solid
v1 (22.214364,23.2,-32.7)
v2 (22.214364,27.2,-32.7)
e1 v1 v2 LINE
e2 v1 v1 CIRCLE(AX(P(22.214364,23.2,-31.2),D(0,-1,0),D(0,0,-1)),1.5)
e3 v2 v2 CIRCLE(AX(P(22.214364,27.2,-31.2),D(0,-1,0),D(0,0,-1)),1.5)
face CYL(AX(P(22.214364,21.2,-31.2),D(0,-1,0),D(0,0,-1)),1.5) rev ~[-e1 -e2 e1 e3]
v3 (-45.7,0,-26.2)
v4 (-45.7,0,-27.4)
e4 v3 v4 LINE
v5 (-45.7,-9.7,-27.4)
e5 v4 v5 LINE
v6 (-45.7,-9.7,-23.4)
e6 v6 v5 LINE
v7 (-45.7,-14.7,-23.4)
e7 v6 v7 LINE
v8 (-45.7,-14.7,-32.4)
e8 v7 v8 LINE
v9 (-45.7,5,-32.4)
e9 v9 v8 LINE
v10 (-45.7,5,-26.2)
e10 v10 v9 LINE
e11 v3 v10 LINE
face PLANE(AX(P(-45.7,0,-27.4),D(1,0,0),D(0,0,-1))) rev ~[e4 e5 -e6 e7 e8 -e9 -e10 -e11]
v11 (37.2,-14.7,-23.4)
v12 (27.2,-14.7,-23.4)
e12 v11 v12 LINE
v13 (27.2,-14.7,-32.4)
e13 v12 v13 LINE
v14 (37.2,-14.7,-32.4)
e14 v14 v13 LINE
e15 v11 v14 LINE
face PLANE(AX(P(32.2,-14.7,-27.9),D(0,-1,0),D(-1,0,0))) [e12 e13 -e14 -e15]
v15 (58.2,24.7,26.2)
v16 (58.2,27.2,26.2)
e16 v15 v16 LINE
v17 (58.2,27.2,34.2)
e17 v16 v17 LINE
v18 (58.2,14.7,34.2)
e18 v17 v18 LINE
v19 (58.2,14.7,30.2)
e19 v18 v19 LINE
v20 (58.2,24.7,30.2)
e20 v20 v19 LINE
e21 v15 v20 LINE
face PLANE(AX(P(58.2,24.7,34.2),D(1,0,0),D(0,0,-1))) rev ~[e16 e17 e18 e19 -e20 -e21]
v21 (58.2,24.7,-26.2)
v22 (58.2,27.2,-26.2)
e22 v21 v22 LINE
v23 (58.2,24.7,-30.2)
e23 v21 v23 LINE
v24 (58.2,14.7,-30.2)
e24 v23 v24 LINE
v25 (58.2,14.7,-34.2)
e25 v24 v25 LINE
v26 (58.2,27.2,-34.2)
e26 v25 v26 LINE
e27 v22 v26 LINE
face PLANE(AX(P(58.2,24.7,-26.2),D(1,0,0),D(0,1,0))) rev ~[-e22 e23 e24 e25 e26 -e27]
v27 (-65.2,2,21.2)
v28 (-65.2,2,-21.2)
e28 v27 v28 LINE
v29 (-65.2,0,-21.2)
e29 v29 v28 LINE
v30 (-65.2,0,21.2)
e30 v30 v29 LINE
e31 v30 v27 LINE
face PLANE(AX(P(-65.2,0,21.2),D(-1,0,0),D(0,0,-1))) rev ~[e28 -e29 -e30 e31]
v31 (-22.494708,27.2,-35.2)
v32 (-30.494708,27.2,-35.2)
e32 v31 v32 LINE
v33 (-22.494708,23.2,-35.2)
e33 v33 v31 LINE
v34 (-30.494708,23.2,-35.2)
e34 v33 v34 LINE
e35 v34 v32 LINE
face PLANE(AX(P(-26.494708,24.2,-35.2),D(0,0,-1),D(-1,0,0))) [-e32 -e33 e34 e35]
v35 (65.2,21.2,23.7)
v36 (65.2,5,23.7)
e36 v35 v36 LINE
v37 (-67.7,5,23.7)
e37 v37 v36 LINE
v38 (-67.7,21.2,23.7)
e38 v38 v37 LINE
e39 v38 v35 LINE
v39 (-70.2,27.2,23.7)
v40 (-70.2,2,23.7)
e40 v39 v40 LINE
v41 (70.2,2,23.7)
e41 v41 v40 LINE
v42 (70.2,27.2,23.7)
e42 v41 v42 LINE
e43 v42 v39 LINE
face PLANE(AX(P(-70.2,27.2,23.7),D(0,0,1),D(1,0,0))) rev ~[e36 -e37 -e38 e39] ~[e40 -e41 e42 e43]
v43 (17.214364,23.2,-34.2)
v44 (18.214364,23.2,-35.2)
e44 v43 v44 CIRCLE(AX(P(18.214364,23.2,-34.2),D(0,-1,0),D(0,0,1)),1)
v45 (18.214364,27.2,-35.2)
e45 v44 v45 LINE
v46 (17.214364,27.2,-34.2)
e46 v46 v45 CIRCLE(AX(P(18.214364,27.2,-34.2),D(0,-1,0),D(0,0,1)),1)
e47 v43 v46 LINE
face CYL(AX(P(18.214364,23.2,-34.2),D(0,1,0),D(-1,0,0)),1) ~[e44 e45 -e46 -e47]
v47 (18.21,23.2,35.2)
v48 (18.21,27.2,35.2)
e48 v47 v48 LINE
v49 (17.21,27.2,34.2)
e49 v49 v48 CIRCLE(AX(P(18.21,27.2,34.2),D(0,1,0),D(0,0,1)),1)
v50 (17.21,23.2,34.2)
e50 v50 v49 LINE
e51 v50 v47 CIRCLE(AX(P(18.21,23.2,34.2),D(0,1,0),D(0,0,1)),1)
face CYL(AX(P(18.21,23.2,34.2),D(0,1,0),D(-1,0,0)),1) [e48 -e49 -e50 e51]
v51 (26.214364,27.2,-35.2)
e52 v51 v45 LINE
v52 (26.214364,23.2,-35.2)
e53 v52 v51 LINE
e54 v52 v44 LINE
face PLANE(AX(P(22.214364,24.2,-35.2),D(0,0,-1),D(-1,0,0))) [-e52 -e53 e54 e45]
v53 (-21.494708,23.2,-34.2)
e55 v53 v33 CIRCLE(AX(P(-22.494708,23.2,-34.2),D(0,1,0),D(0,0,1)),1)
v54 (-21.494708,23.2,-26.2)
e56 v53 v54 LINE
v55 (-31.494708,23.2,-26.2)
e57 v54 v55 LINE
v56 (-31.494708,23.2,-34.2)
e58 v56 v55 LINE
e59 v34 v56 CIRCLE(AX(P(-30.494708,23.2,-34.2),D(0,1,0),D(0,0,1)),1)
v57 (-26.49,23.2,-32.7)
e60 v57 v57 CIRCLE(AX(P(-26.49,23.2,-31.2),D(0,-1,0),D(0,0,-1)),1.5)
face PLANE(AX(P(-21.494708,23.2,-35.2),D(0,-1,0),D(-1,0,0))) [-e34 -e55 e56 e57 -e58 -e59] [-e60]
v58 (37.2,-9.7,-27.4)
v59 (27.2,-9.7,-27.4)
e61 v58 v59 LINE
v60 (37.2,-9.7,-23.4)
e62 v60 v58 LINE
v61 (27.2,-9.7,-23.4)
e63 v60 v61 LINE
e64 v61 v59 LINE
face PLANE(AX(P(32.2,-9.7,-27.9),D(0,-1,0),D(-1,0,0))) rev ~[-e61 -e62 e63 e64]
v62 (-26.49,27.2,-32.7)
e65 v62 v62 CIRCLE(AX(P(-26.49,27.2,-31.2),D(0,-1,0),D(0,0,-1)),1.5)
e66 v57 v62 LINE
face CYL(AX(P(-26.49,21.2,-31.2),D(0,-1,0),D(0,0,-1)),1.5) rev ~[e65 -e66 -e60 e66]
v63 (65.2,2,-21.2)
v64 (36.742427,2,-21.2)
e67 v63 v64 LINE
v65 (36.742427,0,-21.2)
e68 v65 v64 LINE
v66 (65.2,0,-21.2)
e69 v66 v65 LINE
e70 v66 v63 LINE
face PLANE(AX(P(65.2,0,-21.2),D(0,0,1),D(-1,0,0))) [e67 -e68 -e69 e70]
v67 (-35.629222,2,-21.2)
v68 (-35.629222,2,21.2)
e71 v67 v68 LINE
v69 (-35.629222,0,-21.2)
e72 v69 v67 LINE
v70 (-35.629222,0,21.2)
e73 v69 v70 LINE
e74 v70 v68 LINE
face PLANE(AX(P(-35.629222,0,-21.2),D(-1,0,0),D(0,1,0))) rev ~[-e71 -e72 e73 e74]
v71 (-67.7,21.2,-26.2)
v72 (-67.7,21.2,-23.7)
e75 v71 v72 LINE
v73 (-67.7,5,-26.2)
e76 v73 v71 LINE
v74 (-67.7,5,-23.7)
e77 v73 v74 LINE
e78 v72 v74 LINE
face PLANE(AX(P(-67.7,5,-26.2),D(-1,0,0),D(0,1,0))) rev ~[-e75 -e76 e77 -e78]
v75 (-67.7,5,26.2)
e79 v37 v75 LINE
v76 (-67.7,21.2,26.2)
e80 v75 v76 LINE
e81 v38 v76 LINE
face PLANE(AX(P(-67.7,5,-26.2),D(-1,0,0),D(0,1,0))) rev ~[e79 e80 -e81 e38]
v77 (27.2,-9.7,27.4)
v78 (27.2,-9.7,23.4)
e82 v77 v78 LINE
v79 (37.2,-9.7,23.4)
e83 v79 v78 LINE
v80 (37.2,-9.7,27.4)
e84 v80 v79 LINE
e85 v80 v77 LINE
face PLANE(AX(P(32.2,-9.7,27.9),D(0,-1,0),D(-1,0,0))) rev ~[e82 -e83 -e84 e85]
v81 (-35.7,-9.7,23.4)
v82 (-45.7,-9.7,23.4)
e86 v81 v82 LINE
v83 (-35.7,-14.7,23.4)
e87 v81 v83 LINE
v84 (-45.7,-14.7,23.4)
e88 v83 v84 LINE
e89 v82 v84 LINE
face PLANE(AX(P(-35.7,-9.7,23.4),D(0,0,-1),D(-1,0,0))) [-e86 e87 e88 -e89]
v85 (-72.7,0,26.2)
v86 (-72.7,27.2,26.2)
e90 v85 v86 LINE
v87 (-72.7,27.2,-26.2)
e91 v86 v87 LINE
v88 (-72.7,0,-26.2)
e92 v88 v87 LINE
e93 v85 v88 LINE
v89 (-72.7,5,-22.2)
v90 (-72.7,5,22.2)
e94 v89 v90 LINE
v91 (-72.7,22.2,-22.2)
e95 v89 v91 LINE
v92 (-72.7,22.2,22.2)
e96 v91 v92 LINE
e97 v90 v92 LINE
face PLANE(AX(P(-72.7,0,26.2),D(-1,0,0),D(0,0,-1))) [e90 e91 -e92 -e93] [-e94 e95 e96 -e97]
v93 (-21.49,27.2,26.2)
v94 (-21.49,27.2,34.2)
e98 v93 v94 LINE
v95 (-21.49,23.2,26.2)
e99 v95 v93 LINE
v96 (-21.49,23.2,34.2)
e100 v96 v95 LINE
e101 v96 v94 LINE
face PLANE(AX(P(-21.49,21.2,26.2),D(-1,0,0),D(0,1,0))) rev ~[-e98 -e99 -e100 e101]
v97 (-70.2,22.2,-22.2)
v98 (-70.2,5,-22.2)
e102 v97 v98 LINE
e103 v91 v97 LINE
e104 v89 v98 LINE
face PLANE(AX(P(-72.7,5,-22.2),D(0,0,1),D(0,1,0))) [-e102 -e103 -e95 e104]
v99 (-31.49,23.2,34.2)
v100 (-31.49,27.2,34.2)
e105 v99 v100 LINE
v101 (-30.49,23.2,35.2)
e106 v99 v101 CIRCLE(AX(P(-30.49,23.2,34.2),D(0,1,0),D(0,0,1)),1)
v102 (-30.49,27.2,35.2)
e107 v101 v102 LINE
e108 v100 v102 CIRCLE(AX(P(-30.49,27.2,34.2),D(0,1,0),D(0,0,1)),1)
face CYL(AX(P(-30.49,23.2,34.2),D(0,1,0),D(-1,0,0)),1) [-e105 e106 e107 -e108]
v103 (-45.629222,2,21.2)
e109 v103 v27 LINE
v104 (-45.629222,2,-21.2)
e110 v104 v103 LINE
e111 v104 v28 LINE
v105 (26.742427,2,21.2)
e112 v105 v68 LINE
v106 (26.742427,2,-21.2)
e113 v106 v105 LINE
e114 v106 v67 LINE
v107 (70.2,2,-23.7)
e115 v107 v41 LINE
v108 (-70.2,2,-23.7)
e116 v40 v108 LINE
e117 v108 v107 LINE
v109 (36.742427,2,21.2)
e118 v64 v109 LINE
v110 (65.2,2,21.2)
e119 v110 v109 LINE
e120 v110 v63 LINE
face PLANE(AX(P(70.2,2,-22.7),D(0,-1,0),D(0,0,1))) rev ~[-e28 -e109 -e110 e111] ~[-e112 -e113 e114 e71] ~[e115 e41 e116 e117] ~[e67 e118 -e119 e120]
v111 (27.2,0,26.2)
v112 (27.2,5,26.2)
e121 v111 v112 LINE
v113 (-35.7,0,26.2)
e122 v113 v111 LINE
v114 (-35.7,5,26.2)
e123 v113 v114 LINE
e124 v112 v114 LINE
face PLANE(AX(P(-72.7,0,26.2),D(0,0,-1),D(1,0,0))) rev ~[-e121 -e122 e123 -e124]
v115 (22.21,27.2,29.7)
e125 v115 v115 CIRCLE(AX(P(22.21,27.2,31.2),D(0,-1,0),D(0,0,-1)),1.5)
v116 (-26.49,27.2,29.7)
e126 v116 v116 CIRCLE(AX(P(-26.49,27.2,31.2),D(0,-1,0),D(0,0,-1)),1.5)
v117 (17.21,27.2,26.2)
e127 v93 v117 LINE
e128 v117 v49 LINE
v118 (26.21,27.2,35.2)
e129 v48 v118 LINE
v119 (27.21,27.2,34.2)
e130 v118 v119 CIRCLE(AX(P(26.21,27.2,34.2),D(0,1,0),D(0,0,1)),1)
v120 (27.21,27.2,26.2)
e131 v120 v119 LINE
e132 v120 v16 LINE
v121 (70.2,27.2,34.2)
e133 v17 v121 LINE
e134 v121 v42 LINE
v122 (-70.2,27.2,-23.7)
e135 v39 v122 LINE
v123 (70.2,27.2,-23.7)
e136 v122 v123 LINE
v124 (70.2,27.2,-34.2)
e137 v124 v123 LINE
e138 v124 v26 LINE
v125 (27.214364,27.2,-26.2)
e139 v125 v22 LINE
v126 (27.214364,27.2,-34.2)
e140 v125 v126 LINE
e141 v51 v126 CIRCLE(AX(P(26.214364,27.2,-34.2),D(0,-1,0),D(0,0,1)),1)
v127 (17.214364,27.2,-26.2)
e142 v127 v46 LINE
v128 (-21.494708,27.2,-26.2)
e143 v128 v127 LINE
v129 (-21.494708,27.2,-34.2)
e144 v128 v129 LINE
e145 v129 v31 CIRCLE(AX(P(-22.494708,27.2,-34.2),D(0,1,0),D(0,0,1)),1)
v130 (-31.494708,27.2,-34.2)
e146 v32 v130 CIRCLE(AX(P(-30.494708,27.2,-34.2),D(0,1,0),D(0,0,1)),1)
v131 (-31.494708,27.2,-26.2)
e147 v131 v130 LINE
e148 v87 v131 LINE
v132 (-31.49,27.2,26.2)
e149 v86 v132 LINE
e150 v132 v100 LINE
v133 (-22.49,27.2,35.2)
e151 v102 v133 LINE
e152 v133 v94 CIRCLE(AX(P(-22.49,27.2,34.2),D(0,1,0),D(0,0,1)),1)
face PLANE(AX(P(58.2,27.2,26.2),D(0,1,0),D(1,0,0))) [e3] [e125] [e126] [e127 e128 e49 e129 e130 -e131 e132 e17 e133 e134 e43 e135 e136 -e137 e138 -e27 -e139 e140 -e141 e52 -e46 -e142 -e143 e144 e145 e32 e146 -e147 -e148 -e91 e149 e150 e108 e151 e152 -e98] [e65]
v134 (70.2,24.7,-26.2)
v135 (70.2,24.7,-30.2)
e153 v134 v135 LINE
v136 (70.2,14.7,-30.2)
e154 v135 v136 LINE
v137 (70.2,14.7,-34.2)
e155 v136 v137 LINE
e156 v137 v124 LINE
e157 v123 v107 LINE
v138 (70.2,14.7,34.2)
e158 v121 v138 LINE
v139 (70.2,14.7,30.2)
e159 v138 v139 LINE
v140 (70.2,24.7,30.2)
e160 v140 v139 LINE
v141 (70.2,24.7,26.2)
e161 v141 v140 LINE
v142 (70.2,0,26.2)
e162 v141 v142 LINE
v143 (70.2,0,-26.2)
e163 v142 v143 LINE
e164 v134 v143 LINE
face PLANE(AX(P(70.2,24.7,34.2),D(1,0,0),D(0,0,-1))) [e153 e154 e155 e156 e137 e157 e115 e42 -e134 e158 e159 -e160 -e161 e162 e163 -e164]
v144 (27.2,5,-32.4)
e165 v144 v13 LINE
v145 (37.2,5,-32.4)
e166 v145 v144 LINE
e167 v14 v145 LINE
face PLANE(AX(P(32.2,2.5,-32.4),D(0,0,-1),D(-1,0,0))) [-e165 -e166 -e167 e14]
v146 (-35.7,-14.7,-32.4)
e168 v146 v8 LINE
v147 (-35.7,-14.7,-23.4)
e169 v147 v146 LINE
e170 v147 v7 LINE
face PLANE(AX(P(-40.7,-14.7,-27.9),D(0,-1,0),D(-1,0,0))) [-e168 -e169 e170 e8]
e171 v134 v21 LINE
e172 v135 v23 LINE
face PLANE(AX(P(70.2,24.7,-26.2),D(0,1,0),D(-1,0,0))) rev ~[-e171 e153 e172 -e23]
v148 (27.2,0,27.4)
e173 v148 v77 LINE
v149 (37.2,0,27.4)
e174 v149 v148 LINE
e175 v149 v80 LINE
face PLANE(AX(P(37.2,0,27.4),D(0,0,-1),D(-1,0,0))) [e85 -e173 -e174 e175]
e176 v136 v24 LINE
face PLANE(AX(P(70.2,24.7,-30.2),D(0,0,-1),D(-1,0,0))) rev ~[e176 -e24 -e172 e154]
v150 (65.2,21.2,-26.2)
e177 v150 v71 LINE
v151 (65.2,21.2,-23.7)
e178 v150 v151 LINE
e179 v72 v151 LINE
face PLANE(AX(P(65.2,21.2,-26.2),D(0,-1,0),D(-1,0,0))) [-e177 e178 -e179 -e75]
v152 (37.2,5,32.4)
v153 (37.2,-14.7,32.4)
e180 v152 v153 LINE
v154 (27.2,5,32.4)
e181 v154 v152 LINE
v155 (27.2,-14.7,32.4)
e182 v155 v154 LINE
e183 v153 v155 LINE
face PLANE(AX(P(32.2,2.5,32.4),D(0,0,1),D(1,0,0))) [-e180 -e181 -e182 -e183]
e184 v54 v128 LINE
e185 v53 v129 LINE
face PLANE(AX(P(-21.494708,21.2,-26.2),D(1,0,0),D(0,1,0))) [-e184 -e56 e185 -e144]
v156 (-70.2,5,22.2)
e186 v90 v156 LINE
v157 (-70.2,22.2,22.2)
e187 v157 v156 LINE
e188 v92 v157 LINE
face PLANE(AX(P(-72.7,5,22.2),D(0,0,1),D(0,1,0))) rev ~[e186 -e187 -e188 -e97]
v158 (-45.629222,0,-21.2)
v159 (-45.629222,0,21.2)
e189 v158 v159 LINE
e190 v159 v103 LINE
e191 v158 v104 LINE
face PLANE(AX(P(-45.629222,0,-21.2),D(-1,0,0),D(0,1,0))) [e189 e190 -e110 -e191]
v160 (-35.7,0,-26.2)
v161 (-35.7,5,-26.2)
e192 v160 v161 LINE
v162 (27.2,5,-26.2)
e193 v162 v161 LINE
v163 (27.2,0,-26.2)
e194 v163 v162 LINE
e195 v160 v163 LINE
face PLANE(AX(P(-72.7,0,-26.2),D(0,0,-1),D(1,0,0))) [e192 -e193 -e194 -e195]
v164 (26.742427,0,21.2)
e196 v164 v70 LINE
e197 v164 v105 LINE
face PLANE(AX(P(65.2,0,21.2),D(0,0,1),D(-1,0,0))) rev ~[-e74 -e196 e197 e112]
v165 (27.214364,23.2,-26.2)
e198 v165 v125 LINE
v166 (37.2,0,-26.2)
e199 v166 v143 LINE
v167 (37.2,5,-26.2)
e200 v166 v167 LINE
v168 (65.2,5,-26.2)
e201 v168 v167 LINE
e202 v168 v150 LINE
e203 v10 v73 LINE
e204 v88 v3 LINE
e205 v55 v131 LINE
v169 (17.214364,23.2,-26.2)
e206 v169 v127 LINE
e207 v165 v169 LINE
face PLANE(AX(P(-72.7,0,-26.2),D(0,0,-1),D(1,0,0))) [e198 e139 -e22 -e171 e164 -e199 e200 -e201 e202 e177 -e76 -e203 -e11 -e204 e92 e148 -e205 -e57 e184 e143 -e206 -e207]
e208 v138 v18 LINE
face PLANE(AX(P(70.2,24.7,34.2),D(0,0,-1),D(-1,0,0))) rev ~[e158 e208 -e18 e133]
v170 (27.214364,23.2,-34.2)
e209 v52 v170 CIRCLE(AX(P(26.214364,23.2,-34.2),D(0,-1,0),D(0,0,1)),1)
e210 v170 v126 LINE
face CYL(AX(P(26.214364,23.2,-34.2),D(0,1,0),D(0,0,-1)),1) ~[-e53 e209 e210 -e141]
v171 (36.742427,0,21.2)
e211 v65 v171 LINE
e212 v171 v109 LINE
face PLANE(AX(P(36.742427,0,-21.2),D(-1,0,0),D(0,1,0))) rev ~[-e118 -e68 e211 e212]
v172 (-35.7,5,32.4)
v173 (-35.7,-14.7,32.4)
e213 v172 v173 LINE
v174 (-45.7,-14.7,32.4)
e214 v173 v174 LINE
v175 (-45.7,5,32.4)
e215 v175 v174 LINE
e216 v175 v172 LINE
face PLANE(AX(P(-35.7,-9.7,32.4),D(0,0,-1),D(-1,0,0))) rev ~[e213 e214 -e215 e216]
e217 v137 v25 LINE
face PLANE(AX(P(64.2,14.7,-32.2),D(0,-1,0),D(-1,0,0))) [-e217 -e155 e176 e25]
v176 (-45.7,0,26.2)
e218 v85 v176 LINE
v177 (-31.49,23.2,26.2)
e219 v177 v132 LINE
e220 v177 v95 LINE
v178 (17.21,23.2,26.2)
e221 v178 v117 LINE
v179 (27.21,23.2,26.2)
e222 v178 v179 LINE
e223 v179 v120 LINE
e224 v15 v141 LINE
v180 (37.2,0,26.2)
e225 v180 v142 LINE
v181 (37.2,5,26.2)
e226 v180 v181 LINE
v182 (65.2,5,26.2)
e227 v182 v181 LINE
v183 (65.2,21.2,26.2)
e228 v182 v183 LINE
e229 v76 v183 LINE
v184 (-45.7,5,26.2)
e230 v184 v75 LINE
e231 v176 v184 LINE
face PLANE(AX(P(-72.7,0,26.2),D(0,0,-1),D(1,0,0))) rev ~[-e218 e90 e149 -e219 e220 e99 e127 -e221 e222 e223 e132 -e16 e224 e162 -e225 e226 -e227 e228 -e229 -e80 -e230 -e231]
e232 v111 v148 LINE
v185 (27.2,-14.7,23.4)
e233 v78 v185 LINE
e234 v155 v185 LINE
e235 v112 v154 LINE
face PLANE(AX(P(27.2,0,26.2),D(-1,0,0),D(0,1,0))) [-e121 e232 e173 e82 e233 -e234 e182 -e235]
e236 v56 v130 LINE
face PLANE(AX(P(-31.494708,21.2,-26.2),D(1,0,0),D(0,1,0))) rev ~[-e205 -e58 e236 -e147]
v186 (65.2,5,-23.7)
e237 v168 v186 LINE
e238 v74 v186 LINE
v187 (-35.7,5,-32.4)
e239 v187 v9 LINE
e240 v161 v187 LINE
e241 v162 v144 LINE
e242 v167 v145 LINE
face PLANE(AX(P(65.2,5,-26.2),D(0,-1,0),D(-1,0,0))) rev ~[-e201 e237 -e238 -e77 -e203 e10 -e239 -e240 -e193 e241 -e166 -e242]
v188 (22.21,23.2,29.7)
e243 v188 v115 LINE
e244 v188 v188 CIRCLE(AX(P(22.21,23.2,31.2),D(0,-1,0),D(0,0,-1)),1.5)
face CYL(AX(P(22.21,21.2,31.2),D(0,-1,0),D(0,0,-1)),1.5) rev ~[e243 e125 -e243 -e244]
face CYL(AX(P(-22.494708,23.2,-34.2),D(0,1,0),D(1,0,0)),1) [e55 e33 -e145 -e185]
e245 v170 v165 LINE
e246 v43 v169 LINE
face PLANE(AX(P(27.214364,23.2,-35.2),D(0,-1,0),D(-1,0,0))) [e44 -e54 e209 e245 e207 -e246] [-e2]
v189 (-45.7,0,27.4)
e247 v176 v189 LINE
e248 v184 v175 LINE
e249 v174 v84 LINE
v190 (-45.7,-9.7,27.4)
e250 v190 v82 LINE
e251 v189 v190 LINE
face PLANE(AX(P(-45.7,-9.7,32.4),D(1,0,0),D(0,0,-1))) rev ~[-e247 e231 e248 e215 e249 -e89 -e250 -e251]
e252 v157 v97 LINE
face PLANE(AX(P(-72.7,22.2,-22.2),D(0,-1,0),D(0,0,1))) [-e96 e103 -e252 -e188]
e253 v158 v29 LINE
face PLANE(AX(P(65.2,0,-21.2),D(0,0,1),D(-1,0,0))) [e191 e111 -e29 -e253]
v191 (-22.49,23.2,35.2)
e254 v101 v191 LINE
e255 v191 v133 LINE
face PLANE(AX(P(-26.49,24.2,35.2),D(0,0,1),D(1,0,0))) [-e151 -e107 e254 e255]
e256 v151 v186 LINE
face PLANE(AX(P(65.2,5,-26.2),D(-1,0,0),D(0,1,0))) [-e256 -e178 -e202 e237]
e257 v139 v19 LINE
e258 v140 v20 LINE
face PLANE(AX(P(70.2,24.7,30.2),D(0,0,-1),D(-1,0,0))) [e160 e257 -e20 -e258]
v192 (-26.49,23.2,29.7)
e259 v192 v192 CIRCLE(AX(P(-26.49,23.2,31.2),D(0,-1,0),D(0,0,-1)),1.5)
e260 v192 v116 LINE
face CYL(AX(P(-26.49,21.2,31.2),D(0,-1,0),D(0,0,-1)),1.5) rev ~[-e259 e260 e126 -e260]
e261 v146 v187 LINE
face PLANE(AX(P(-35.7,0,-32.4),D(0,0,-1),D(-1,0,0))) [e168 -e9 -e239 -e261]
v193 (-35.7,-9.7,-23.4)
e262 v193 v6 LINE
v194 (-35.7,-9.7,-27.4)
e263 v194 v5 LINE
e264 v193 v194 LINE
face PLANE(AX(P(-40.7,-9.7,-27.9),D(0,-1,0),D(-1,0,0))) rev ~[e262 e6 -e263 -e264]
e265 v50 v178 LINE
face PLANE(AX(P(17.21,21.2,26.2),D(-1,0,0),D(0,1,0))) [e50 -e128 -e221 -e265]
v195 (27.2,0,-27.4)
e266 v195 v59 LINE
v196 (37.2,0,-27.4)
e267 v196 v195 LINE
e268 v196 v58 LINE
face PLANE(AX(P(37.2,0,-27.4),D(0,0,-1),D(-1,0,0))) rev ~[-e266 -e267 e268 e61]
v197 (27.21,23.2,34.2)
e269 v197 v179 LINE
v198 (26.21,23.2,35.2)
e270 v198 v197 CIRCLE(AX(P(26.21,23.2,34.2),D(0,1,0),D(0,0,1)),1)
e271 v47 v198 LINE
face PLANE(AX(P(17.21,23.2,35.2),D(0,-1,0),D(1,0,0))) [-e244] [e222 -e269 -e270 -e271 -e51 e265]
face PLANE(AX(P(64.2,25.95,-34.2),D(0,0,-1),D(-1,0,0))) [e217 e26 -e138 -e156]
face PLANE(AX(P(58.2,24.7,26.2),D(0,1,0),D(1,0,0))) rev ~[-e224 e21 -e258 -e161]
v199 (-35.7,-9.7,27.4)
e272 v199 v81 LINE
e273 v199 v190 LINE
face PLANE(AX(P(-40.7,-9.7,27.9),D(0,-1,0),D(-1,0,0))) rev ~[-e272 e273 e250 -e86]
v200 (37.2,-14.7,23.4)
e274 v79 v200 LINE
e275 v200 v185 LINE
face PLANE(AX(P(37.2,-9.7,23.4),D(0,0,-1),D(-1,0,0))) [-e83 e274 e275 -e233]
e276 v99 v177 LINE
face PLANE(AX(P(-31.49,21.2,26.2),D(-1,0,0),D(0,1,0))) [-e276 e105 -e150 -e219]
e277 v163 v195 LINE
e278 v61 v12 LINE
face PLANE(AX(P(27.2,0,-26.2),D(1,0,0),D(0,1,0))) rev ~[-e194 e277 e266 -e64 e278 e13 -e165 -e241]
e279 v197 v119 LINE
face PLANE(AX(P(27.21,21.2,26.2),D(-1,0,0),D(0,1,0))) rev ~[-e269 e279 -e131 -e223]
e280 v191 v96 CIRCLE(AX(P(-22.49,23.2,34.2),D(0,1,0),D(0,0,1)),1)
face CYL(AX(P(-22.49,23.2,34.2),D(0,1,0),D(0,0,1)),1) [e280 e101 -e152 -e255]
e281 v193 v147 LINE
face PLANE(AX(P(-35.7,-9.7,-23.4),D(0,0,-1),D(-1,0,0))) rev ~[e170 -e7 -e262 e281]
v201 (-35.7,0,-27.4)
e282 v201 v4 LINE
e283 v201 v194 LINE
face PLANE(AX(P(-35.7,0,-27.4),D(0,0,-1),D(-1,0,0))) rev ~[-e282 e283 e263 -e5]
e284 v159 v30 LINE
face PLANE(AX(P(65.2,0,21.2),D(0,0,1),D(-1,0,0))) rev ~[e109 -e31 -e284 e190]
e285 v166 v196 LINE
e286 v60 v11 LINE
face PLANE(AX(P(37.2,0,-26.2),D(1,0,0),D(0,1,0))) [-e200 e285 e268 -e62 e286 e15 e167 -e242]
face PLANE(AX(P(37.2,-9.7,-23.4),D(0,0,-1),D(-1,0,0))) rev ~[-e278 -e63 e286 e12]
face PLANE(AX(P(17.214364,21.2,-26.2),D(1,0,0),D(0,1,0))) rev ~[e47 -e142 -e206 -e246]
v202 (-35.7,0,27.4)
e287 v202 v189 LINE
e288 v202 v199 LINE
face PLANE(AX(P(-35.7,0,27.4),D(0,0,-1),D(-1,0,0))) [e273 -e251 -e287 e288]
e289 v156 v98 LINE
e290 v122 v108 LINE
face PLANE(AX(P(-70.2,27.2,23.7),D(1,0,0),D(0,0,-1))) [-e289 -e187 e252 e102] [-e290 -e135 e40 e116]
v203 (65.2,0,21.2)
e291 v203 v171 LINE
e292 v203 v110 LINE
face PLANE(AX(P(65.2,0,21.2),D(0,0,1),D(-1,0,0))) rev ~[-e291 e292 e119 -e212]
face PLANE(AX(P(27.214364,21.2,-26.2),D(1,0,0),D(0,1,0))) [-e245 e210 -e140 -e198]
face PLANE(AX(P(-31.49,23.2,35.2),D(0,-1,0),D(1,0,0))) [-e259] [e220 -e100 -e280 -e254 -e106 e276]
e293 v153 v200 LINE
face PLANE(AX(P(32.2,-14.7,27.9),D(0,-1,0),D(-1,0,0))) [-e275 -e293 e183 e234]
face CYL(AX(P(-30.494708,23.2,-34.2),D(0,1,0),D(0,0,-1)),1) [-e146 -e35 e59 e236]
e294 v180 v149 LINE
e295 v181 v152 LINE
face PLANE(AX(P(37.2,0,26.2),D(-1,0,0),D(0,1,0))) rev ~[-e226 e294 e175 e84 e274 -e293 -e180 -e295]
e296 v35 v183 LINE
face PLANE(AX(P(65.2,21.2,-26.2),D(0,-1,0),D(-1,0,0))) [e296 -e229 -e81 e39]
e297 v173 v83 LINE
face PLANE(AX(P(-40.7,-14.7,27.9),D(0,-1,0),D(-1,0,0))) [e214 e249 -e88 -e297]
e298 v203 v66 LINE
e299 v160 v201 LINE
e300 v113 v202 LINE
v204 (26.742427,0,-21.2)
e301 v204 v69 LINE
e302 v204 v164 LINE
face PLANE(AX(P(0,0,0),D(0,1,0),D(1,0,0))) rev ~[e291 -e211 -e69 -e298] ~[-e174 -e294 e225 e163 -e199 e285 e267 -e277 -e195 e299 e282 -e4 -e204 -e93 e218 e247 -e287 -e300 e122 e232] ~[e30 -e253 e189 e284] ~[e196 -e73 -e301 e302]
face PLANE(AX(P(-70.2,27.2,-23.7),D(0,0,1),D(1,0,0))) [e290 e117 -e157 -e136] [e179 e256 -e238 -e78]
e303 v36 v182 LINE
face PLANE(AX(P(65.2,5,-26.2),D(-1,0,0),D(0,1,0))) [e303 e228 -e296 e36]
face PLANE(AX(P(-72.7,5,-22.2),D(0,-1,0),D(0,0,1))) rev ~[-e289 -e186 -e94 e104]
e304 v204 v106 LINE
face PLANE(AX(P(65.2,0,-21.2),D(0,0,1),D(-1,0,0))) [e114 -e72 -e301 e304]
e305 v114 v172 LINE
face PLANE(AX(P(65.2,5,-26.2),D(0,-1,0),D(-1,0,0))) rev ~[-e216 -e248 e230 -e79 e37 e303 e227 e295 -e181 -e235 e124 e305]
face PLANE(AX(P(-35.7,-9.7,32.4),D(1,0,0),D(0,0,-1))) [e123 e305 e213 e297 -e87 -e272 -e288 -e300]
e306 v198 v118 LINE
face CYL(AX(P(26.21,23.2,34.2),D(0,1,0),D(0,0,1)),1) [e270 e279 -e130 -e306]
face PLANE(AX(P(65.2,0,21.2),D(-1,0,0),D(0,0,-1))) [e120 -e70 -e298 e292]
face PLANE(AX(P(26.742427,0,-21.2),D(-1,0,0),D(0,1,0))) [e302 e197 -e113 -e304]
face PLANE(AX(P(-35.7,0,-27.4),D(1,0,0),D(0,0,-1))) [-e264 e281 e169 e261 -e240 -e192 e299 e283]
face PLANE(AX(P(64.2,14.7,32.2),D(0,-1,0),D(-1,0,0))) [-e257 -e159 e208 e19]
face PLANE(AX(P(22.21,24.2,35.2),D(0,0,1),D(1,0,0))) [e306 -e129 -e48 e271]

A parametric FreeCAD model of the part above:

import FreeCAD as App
import Part
import Sketcher

V = App.Vector
Q = App.Units.Quantity


def edges_at(feature, points):
    """Names of the edges that pass closest to the given points."""
    edges = feature.Shape.Edges
    near = lambda p: min(range(len(edges)), key=lambda i: edges[i].distToShape(Part.Vertex(*p))[0])
    return sorted({f"Edge{near(p) + 1}" for p in points})


def add_polygon(sketch, points):
    """Adds a closed chain of lines whose ends are joined by coincident constraints."""
    first, n = sketch.GeometryCount, len(points)
    for a, b in zip(points, points[1:] + points[:1]):
        sketch.addGeometry(Part.LineSegment(App.Vector(*a, 0), App.Vector(*b, 0)), False)
    for i in range(n):
        sketch.addConstraint(Sketcher.Constraint("Coincident", first + i, 2, first + (i + 1) % n, 1))

doc = App.newDocument("Part")
body = doc.addObject("PartDesign::Body", "Body")

# Sketch on XZ plane
sketch1 = body.newObject("Sketcher::SketchObject", "Sketch")
sketch1.AttachmentSupport = (doc.getObject("XZ_Plane"), [""])
sketch1.MapMode = "FlatFace"
add_polygon(sketch1, [(-73, -26), (-73, 26), (73, 26), (73, -26)])  # lines 0-3
sketch1.addConstraint([
    Sketcher.Constraint("Vertical", 0),
    Sketcher.Constraint("Horizontal", 1),
    Sketcher.Constraint("Vertical", 2),
    Sketcher.Constraint("Horizontal", 3),
    Sketcher.Constraint("Symmetric", 0, 2, 2, 2, -1, 1),
    Sketcher.Constraint("DistanceX", 1, 1, 1, 2, Q("145.4 mm")),
    Sketcher.Constraint("DistanceY", 0, 1, 0, 2, Q("52.4 mm")),
])
pad1 = body.newObject("PartDesign::Pad", "Pad")
pad1.Profile = sketch1
pad1.Length = 27.2
pad1.Reversed = True

# Sketch on XZ plane
sketch2 = body.newObject("Sketcher::SketchObject", "Sketch001")
sketch2.AttachmentSupport = (doc.getObject("XZ_Plane"), [""])
sketch2.MapMode = "FlatFace"
sketch2.AttachmentOffset = App.Placement(V(0, 0, -27.2), App.Rotation())
add_polygon(sketch2, [(-70, -24), (-70, 24), (70, 24), (70, -24)])  # lines 0-3
sketch2.addConstraint([
    Sketcher.Constraint("Vertical", 0),
    Sketcher.Constraint("Horizontal", 1),
    Sketcher.Constraint("Vertical", 2),
    Sketcher.Constraint("Horizontal", 3),
    Sketcher.Constraint("Symmetric", 0, 2, 2, 2, -1, 1),
    Sketcher.Constraint("DistanceX", 1, 1, 1, 2, Q("140.4 mm")),
    Sketcher.Constraint("DistanceY", 0, 1, 0, 2, Q("47.4 mm")),
])
pocket1 = body.newObject("PartDesign::Pocket", "Pocket")
pocket1.Profile = sketch2
pocket1.Length = 25.2
pocket1.Reversed = True

# Sketch on YZ plane
sketch3 = body.newObject("Sketcher::SketchObject", "Sketch002")
sketch3.AttachmentSupport = (doc.getObject("YZ_Plane"), [""])
sketch3.MapMode = "FlatFace"
sketch3.AttachmentOffset = App.Placement(V(0, 0, 70.2), App.Rotation())
add_polygon(sketch3, [(27, -23), (2, -23), (2, 24), (27, 24)])  # lines 0-3
sketch3.addConstraint([
    Sketcher.Constraint("Horizontal", 0),
    Sketcher.Constraint("Vertical", 1),
    Sketcher.Constraint("Horizontal", 2),
    Sketcher.Constraint("Vertical", 3),
    Sketcher.Constraint("DistanceX", 0, 2, 0, 1, Q("25.2 mm")),
    Sketcher.Constraint("DistanceY", 1, 1, 1, 2, Q("46.4 mm")),
    Sketcher.Constraint("DistanceX", -1, 1, 0, 2, Q("2 mm")),
    Sketcher.Constraint("DistanceY", 0, 2, -1, 1, Q("22.7 mm")),
])
pocket2 = body.newObject("PartDesign::Pocket", "Pocket001")
pocket2.Profile = sketch3
pocket2.Length = 25.2
pocket2.Reversed = True

# Sketch on XZ plane
sketch4 = body.newObject("Sketcher::SketchObject", "Sketch003")
sketch4.AttachmentSupport = (doc.getObject("XZ_Plane"), [""])
sketch4.MapMode = "FlatFace"
sketch4.AttachmentOffset = App.Placement(V(0, 0, -27.2), App.Rotation())
add_polygon(sketch4, [(70.2, -26.2), (70.2, 26.2), (72.7, 26.2), (72.7, -26.2)])  # lines 0-3
sketch4.addConstraint([
    Sketcher.Constraint("Vertical", 0),
    Sketcher.Constraint("Horizontal", 1),
    Sketcher.Constraint("Vertical", 2),
    Sketcher.Constraint("Horizontal", 3),
    Sketcher.Constraint("DistanceX", 1, 1, 1, 2, Q("2.5 mm")),
    Sketcher.Constraint("DistanceY", 0, 1, 0, 2, Q("52.4 mm")),
    Sketcher.Constraint("DistanceX", -1, 1, 0, 2, Q("70.2 mm")),
    Sketcher.Constraint("DistanceY", -1, 1, 0, 2, Q("26.2 mm")),
])
pocket3 = body.newObject("PartDesign::Pocket", "Pocket002")
pocket3.Profile = sketch4
pocket3.Length = 43
pocket3.Reversed = True

# Sketch on YZ plane
sketch5 = body.newObject("Sketcher::SketchObject", "Sketch004")
sketch5.AttachmentSupport = (doc.getObject("YZ_Plane"), [""])
sketch5.MapMode = "FlatFace"
sketch5.AttachmentOffset = App.Placement(V(0, 0, -72.7), App.Rotation())
add_polygon(sketch5, [(22, -22), (5, -22), (5, 22), (22, 22)])  # lines 0-3
sketch5.addConstraint([
    Sketcher.Constraint("Horizontal", 0),
    Sketcher.Constraint("Vertical", 1),
    Sketcher.Constraint("Horizontal", 2),
    Sketcher.Constraint("Vertical", 3),
    Sketcher.Constraint("DistanceX", 0, 2, 0, 1, Q("17.2 mm")),
    Sketcher.Constraint("DistanceY", 1, 1, 1, 2, Q("44.4 mm")),
    Sketcher.Constraint("DistanceX", -1, 1, 0, 2, Q("5 mm")),
    Sketcher.Constraint("DistanceY", 0, 2, -1, 1, Q("22.2 mm")),
])
pocket4 = body.newObject("PartDesign::Pocket", "Pocket003")
pocket4.Profile = sketch5
pocket4.Length = 43
pocket4.Reversed = True

# Sketch on XY plane
sketch6 = body.newObject("Sketcher::SketchObject", "Sketch005")
sketch6.AttachmentSupport = (doc.getObject("XY_Plane"), [""])
sketch6.MapMode = "FlatFace"
sketch6.AttachmentOffset = App.Placement(V(0, 0, -26.2), App.Rotation())
add_polygon(sketch6, [(65, 21), (65, 5), (-68, 5), (-68, 21)])  # lines 0-3
sketch6.addConstraint([
    Sketcher.Constraint("Vertical", 0),
    Sketcher.Constraint("Horizontal", 1),
    Sketcher.Constraint("Vertical", 2),
    Sketcher.Constraint("Horizontal", 3),
    Sketcher.Constraint("DistanceX", 1, 2, 1, 1, Q("132.9 mm")),
    Sketcher.Constraint("DistanceY", 0, 2, 0, 1, Q("16.2 mm")),
    Sketcher.Constraint("DistanceY", -1, 1, 0, 2, Q("5 mm")),
    Sketcher.Constraint("DistanceX", -1, 1, 0, 2, Q("65.2 mm")),
])
pocket5 = body.newObject("PartDesign::Pocket", "Pocket004")
pocket5.Profile = sketch6
pocket5.Length = 59
pocket5.Reversed = True

# Sketch on XZ plane
sketch7 = body.newObject("Sketcher::SketchObject", "Sketch006")
sketch7.AttachmentSupport = (doc.getObject("XZ_Plane"), [""])
sketch7.MapMode = "FlatFace"
add_polygon(sketch7, [(65, -21), (65, 21), (-65, 21), (-65, -21)])  # lines 0-3
sketch7.addConstraint([
    Sketcher.Constraint("Vertical", 0),
    Sketcher.Constraint("Horizontal", 1),
    Sketcher.Constraint("Vertical", 2),
    Sketcher.Constraint("Horizontal", 3),
    Sketcher.Constraint("Symmetric", 0, 2, 2, 2, -1, 1),
    Sketcher.Constraint("DistanceX", 1, 2, 1, 1, Q("130.4 mm")),
    Sketcher.Constraint("DistanceY", 0, 1, 0, 2, Q("42.4 mm")),
])
pocket6 = body.newObject("PartDesign::Pocket", "Pocket005")
pocket6.Profile = sketch7
pocket6.Length = 10

# Sketch on XY plane
sketch8 = body.newObject("Sketcher::SketchObject", "Sketch007")
sketch8.AttachmentSupport = (doc.getObject("XY_Plane"), [""])
sketch8.MapMode = "FlatFace"
sketch8.AttachmentOffset = App.Placement(V(0, 0, -26.2), App.Rotation())
add_polygon(sketch8, [(70.2, 27.2), (70.2, 24.7), (58.2, 24.7), (58.2, 27.2)])  # lines 0-3
sketch8.addConstraint([
    Sketcher.Constraint("Vertical", 0),
    Sketcher.Constraint("Horizontal", 1),
    Sketcher.Constraint("Vertical", 2),
    Sketcher.Constraint("Horizontal", 3),
    Sketcher.Constraint("DistanceX", 1, 2, 1, 1, Q("12 mm")),
    Sketcher.Constraint("DistanceY", 0, 2, 0, 1, Q("2.5 mm")),
    Sketcher.Constraint("DistanceX", -1, 1, 0, 2, Q("70.2 mm")),
    Sketcher.Constraint("DistanceY", -1, 1, 0, 2, Q("24.7 mm")),
])
pad2 = body.newObject("PartDesign::Pad", "Pad001")
pad2.Profile = sketch8
pad2.Length = 8
pad2.Reversed = True

# Sketch on XY plane
sketch9 = body.newObject("Sketcher::SketchObject", "Sketch008")
sketch9.AttachmentSupport = (doc.getObject("XY_Plane"), [""])
sketch9.MapMode = "FlatFace"
sketch9.AttachmentOffset = App.Placement(V(0, 0, 26.2), App.Rotation())
add_polygon(sketch9, [(58.2, 27.2), (58.2, 24.7), (70.2, 24.7), (70.2, 27.2)])  # lines 0-3
sketch9.addConstraint([
    Sketcher.Constraint("Vertical", 0),
    Sketcher.Constraint("Horizontal", 1),
    Sketcher.Constraint("Vertical", 2),
    Sketcher.Constraint("Horizontal", 3),
    Sketcher.Constraint("DistanceX", 1, 1, 1, 2, Q("12 mm")),
    Sketcher.Constraint("DistanceY", 0, 2, 0, 1, Q("2.5 mm")),
    Sketcher.Constraint("DistanceX", -1, 1, 0, 2, Q("58.2 mm")),
    Sketcher.Constraint("DistanceY", -1, 1, 0, 2, Q("24.7 mm")),
])
pad3 = body.newObject("PartDesign::Pad", "Pad002")
pad3.Profile = sketch9
pad3.Length = 8

# Sketch on XY plane
sketch10 = body.newObject("Sketcher::SketchObject", "Sketch009")
sketch10.AttachmentSupport = (doc.getObject("XY_Plane"), [""])
sketch10.MapMode = "FlatFace"
sketch10.AttachmentOffset = App.Placement(V(0, 0, 26.2), App.Rotation())
add_polygon(sketch10, [(-46, 5), (-46, 0), (-36, 0), (-36, 5)])  # lines 0-3
add_polygon(sketch10, [(27, 5), (27, 0), (37, 0), (37, 5)])  # lines 4-7
sketch10.addConstraint([
    Sketcher.Constraint("Vertical", 0),
    Sketcher.Constraint("Horizontal", 1),
    Sketcher.Constraint("Vertical", 2),
    Sketcher.Constraint("Horizontal", 3),
    Sketcher.Constraint("Vertical", 4),
    Sketcher.Constraint("Horizontal", 5),
    Sketcher.Constraint("Vertical", 6),
    Sketcher.Constraint("Horizontal", 7),
    Sketcher.Constraint("PointOnObject", 0, 2, -1),
    Sketcher.Constraint("PointOnObject", 4, 2, -1),
    Sketcher.Constraint("Horizontal", 3, 2, 6, 2),
    Sketcher.Constraint("Equal", 3, 5),
    Sketcher.Constraint("DistanceX", 1, 1, 1, 2, Q("10 mm")),
    Sketcher.Constraint("DistanceY", 0, 2, 0, 1, Q("5 mm")),
    Sketcher.Constraint("DistanceX", 0, 2, -1, 1, Q("45.7 mm")),
    Sketcher.Constraint("DistanceX", -1, 1, 4, 2, Q("27.2 mm")),
])
pad4 = body.newObject("PartDesign::Pad", "Pad003")
pad4.Profile = sketch10
pad4.Length = 6.2

# Sketch on XY plane
sketch11 = body.newObject("Sketcher::SketchObject", "Sketch010")
sketch11.AttachmentSupport = (doc.getObject("XY_Plane"), [""])
sketch11.MapMode = "FlatFace"
sketch11.AttachmentOffset = App.Placement(V(0, 0, -26.2), App.Rotation())
add_polygon(sketch11, [(-36, 5), (-36, 0), (-46, 0), (-46, 5)])  # lines 0-3
add_polygon(sketch11, [(37, 5), (37, 0), (27, 0), (27, 5)])  # lines 4-7
sketch11.addConstraint([
    Sketcher.Constraint("Vertical", 0),
    Sketcher.Constraint("Horizontal", 1),
    Sketcher.Constraint("Vertical", 2),
    Sketcher.Constraint("Horizontal", 3),
    Sketcher.Constraint("Vertical", 4),
    Sketcher.Constraint("Horizontal", 5),
    Sketcher.Constraint("Vertical", 6),
    Sketcher.Constraint("Horizontal", 7),
    Sketcher.Constraint("PointOnObject", 0, 2, -1),
    Sketcher.Constraint("PointOnObject", 4, 2, -1),
    Sketcher.Constraint("Horizontal", 3, 2, 6, 2),
    Sketcher.Constraint("Equal", 3, 5),
    Sketcher.Constraint("DistanceX", 1, 2, 1, 1, Q("10 mm")),
    Sketcher.Constraint("DistanceY", 0, 2, 0, 1, Q("5 mm")),
    Sketcher.Constraint("DistanceX", 0, 2, -1, 1, Q("35.7 mm")),
    Sketcher.Constraint("DistanceX", -1, 1, 4, 2, Q("37.2 mm")),
])
pad5 = body.newObject("PartDesign::Pad", "Pad004")
pad5.Profile = sketch11
pad5.Length = 6.2
pad5.Reversed = True

# Sketch on XZ plane
sketch12 = body.newObject("Sketcher::SketchObject", "Sketch011")
sketch12.AttachmentSupport = (doc.getObject("XZ_Plane"), [""])
sketch12.MapMode = "FlatFace"
add_polygon(sketch12, [(-36, -32), (-36, -27), (-46, -27), (-46, -32)])  # lines 0-3
add_polygon(sketch12, [(-36, 27), (-36, 32), (-46, 32), (-46, 27)])  # lines 4-7
add_polygon(sketch12, [(37, 27), (37, 32), (27, 32), (27, 27)])  # lines 8-11
add_polygon(sketch12, [(37, -32), (37, -27), (27, -27), (27, -32)])  # lines 12-15
sketch12.addConstraint([
    Sketcher.Constraint("Vertical", 0),
    Sketcher.Constraint("Horizontal", 1),
    Sketcher.Constraint("Vertical", 2),
    Sketcher.Constraint("Horizontal", 3),
    Sketcher.Constraint("Vertical", 4),
    Sketcher.Constraint("Horizontal", 5),
    Sketcher.Constraint("Vertical", 6),
    Sketcher.Constraint("Horizontal", 7),
    Sketcher.Constraint("Vertical", 8),
    Sketcher.Constraint("Horizontal", 9),
    Sketcher.Constraint("Vertical", 10),
    Sketcher.Constraint("Horizontal", 11),
    Sketcher.Constraint("Vertical", 12),
    Sketcher.Constraint("Horizontal", 13),
    Sketcher.Constraint("Vertical", 14),
    Sketcher.Constraint("Horizontal", 15),
    Sketcher.Constraint("Symmetric", 3, 2, 4, 2, -1),
    Sketcher.Constraint("Symmetric", 1, 2, 6, 2, -1),
    Sketcher.Constraint("Symmetric", 11, 2, 12, 2, -1),
    Sketcher.Constraint("Symmetric", 9, 2, 14, 2, -1),
    Sketcher.Constraint("Horizontal", 5, 2, 8, 2),
    Sketcher.Constraint("Horizontal", 7, 2, 10, 2),
    Sketcher.Constraint("Equal", 7, 9),
    Sketcher.Constraint("DistanceX", 1, 2, 1, 1, Q("10 mm")),
    Sketcher.Constraint("DistanceY", 0, 1, 0, 2, Q("5 mm")),
    Sketcher.Constraint("DistanceX", 0, 2, -1, 1, Q("35.7 mm")),
    Sketcher.Constraint("DistanceY", 0, 2, -1, 1, Q("27.4 mm")),
    Sketcher.Constraint("DistanceX", -1, 1, 8, 2, Q("37.2 mm")),
])
pad6 = body.newObject("PartDesign::Pad", "Pad005")
pad6.Profile = sketch12
pad6.Length = 9.7

# Sketch on XZ plane
sketch13 = body.newObject("Sketcher::SketchObject", "Sketch012")
sketch13.AttachmentSupport = (doc.getObject("XZ_Plane"), [""])
sketch13.MapMode = "FlatFace"
sketch13.AttachmentOffset = App.Placement(V(0, 0, 9.7), App.Rotation())
add_polygon(sketch13, [(-36, 23), (-36, 32), (-46, 32), (-46, 23)])  # lines 0-3
add_polygon(sketch13, [(37, 23), (37, 32), (27, 32), (27, 23)])  # lines 4-7
add_polygon(sketch13, [(-36, -32), (-36, -23), (-46, -23), (-46, -32)])  # lines 8-11
add_polygon(sketch13, [(37, -32), (37, -23), (27, -23), (27, -32)])  # lines 12-15
sketch13.addConstraint([
    Sketcher.Constraint("Vertical", 0),
    Sketcher.Constraint("Horizontal", 1),
    Sketcher.Constraint("Vertical", 2),
    Sketcher.Constraint("Horizontal", 3),
    Sketcher.Constraint("Vertical", 4),
    Sketcher.Constraint("Horizontal", 5),
    Sketcher.Constraint("Vertical", 6),
    Sketcher.Constraint("Horizontal", 7),
    Sketcher.Constraint("Vertical", 8),
    Sketcher.Constraint("Horizontal", 9),
    Sketcher.Constraint("Vertical", 10),
    Sketcher.Constraint("Horizontal", 11),
    Sketcher.Constraint("Vertical", 12),
    Sketcher.Constraint("Horizontal", 13),
    Sketcher.Constraint("Vertical", 14),
    Sketcher.Constraint("Horizontal", 15),
    Sketcher.Constraint("Symmetric", 3, 2, 8, 2, -1),
    Sketcher.Constraint("Symmetric", 1, 2, 10, 2, -1),
    Sketcher.Constraint("Symmetric", 7, 2, 12, 2, -1),
    Sketcher.Constraint("Symmetric", 5, 2, 14, 2, -1),
    Sketcher.Constraint("Horizontal", 1, 2, 4, 2),
    Sketcher.Constraint("Horizontal", 3, 2, 6, 2),
    Sketcher.Constraint("Equal", 3, 5),
    Sketcher.Constraint("DistanceX", 1, 2, 1, 1, Q("10 mm")),
    Sketcher.Constraint("DistanceY", 0, 1, 0, 2, Q("9 mm")),
    Sketcher.Constraint("DistanceX", 0, 2, -1, 1, Q("35.7 mm")),
    Sketcher.Constraint("DistanceY", -1, 1, 0, 2, Q("32.4 mm")),
    Sketcher.Constraint("DistanceX", -1, 1, 4, 2, Q("37.2 mm")),
])
pad7 = body.newObject("PartDesign::Pad", "Pad006")
pad7.Profile = sketch13
pad7.Length = 5

# Sketch on XY plane
sketch14 = body.newObject("Sketcher::SketchObject", "Sketch013")
sketch14.AttachmentSupport = (doc.getObject("XY_Plane"), [""])
sketch14.MapMode = "FlatFace"
sketch14.AttachmentOffset = App.Placement(V(0, 0, -21.2), App.Rotation())
add_polygon(sketch14, [(-45.6, 2), (-45.6, 0), (-35.6, 0), (-35.6, 2)])  # lines 0-3
sketch14.addConstraint([
    Sketcher.Constraint("Vertical", 0),
    Sketcher.Constraint("Horizontal", 1),
    Sketcher.Constraint("Vertical", 2),
    Sketcher.Constraint("Horizontal", 3),
    Sketcher.Constraint("PointOnObject", 0, 2, -1),
    Sketcher.Constraint("DistanceX", 1, 1, 1, 2, Q("10 mm")),
    Sketcher.Constraint("DistanceY", 0, 2, 0, 1, Q("2 mm")),
    Sketcher.Constraint("DistanceX", 0, 2, -1, 1, Q("45.629222 mm")),
])
pad8 = body.newObject("PartDesign::Pad", "Pad007")
pad8.Profile = sketch14
pad8.Length = 42.4

# Sketch on XY plane
sketch15 = body.newObject("Sketcher::SketchObject", "Sketch014")
sketch15.AttachmentSupport = (doc.getObject("XY_Plane"), [""])
sketch15.MapMode = "FlatFace"
sketch15.AttachmentOffset = App.Placement(V(0, 0, -21.2), App.Rotation())
add_polygon(sketch15, [(26.7, 2), (26.7, 0), (36.7, 0), (36.7, 2)])  # lines 0-3
sketch15.addConstraint([
    Sketcher.Constraint("Vertical", 0),
    Sketcher.Constraint("Horizontal", 1),
    Sketcher.Constraint("Vertical", 2),
    Sketcher.Constraint("Horizontal", 3),
    Sketcher.Constraint("PointOnObject", 0, 2, -1),
    Sketcher.Constraint("DistanceX", 1, 1, 1, 2, Q("10 mm")),
    Sketcher.Constraint("DistanceY", 0, 2, 0, 1, Q("2 mm")),
    Sketcher.Constraint("DistanceX", -1, 1, 0, 2, Q("26.742427 mm")),
])
pad9 = body.newObject("PartDesign::Pad", "Pad008")
pad9.Profile = sketch15
pad9.Length = 42.4

# Sketch on XZ plane
sketch16 = body.newObject("Sketcher::SketchObject", "Sketch015")
sketch16.AttachmentSupport = (doc.getObject("XZ_Plane"), [""])
sketch16.MapMode = "FlatFace"
sketch16.AttachmentOffset = App.Placement(V(0, 0, -24.7), App.Rotation())
add_polygon(sketch16, [(70.2, 30.2), (70.2, 34.2), (58.2, 34.2), (58.2, 30.2)])  # lines 0-3
add_polygon(sketch16, [(70.2, -34.2), (70.2, -30.2), (58.2, -30.2), (58.2, -34.2)])  # lines 4-7
sketch16.addConstraint([
    Sketcher.Constraint("Vertical", 0),
    Sketcher.Constraint("Horizontal", 1),
    Sketcher.Constraint("Vertical", 2),
    Sketcher.Constraint("Horizontal", 3),
    Sketcher.Constraint("Vertical", 4),
    Sketcher.Constraint("Horizontal", 5),
    Sketcher.Constraint("Vertical", 6),
    Sketcher.Constraint("Horizontal", 7),
    Sketcher.Constraint("Symmetric", 3, 2, 4, 2, -1),
    Sketcher.Constraint("Symmetric", 1, 2, 6, 2, -1),
    Sketcher.Constraint("DistanceX", 1, 2, 1, 1, Q("12 mm")),
    Sketcher.Constraint("DistanceY", 0, 1, 0, 2, Q("4 mm")),
    Sketcher.Constraint("DistanceX", -1, 1, 0, 2, Q("70.2 mm")),
    Sketcher.Constraint("DistanceY", -1, 1, 0, 2, Q("34.2 mm")),
])
pad10 = body.newObject("PartDesign::Pad", "Pad009")
pad10.Profile = sketch16
pad10.Length = 10

# Sketch on XY plane
sketch17 = body.newObject("Sketcher::SketchObject", "Sketch016")
sketch17.AttachmentSupport = (doc.getObject("XY_Plane"), [""])
sketch17.MapMode = "FlatFace"
sketch17.AttachmentOffset = App.Placement(V(0, 0, -26.2), App.Rotation())
add_polygon(sketch17, [(27, 27), (27, 21), (17, 21), (17, 27)])  # lines 0-3
add_polygon(sketch17, [(-21, 27), (-21, 21), (-31, 21), (-31, 27)])  # lines 4-7
sketch17.addConstraint([
    Sketcher.Constraint("Vertical", 0),
    Sketcher.Constraint("Horizontal", 1),
    Sketcher.Constraint("Vertical", 2),
    Sketcher.Constraint("Horizontal", 3),
    Sketcher.Constraint("Vertical", 4),
    Sketcher.Constraint("Horizontal", 5),
    Sketcher.Constraint("Vertical", 6),
    Sketcher.Constraint("Horizontal", 7),
    Sketcher.Constraint("Horizontal", 1, 2, 4, 2),
    Sketcher.Constraint("Horizontal", 3, 2, 6, 2),
    Sketcher.Constraint("Equal", 3, 5),
    Sketcher.Constraint("DistanceX", 1, 2, 1, 1, Q("10 mm")),
    Sketcher.Constraint("DistanceY", 0, 2, 0, 1, Q("6 mm")),
    Sketcher.Constraint("DistanceY", -1, 1, 0, 2, Q("21.2 mm")),
    Sketcher.Constraint("DistanceX", 4, 2, 1, 2, Q("38.709071 mm")),
    Sketcher.Constraint("DistanceX", -1, 1, 0, 2, Q("27.214364 mm")),
])
pad11 = body.newObject("PartDesign::Pad", "Pad010")
pad11.Profile = sketch17
pad11.Length = 9
pad11.Reversed = True

# Sketch on XY plane
sketch18 = body.newObject("Sketcher::SketchObject", "Sketch017")
sketch18.AttachmentSupport = (doc.getObject("XY_Plane"), [""])
sketch18.MapMode = "FlatFace"
sketch18.AttachmentOffset = App.Placement(V(0, 0, 26.2), App.Rotation())
add_polygon(sketch18, [(-31, 27), (-31, 21), (-21, 21), (-21, 27)])  # lines 0-3
add_polygon(sketch18, [(17, 27), (17, 21), (27, 21), (27, 27)])  # lines 4-7
sketch18.addConstraint([
    Sketcher.Constraint("Vertical", 0),
    Sketcher.Constraint("Horizontal", 1),
    Sketcher.Constraint("Vertical", 2),
    Sketcher.Constraint("Horizontal", 3),
    Sketcher.Constraint("Vertical", 4),
    Sketcher.Constraint("Horizontal", 5),
    Sketcher.Constraint("Vertical", 6),
    Sketcher.Constraint("Horizontal", 7),
    Sketcher.Constraint("Horizontal", 1, 2, 4, 2),
    Sketcher.Constraint("Horizontal", 3, 2, 6, 2),
    Sketcher.Constraint("Equal", 3, 5),
    Sketcher.Constraint("DistanceX", 1, 1, 1, 2, Q("10 mm")),
    Sketcher.Constraint("DistanceY", 0, 2, 0, 1, Q("6 mm")),
    Sketcher.Constraint("DistanceY", -1, 1, 0, 2, Q("21.2 mm")),
    Sketcher.Constraint("DistanceX", 1, 2, 4, 2, Q("38.7 mm")),
    Sketcher.Constraint("DistanceX", 0, 2, -1, 1, Q("31.49 mm")),
])
pad12 = body.newObject("PartDesign::Pad", "Pad011")
pad12.Profile = sketch18
pad12.Length = 9

# Sketch on XZ plane
sketch19 = body.newObject("Sketcher::SketchObject", "Sketch018")
sketch19.AttachmentSupport = (doc.getObject("XZ_Plane"), [""])
sketch19.MapMode = "FlatFace"
sketch19.AttachmentOffset = App.Placement(V(0, 0, -21.2), App.Rotation())
sketch19.addGeometry([
    Part.Circle(V(-26.5, 31.2, 0), V(0, 0, 1), 1.5),
    Part.Circle(V(22.2, 31.2, 0), V(0, 0, 1), 1.5),
    Part.Circle(V(-26.5, -31.2, 0), V(0, 0, 1), 1.5),
    Part.Circle(V(22.2, -31.2, 0), V(0, 0, 1), 1.5),
], False)
sketch19.addConstraint([
    Sketcher.Constraint("Equal", 0, 1),
    Sketcher.Constraint("Equal", 1, 2),
    Sketcher.Constraint("Equal", 2, 3),
    Sketcher.Constraint("Symmetric", 0, 3, 2, 3, -1),
    Sketcher.Constraint("Horizontal", 0, 3, 1, 3),
    Sketcher.Constraint("Horizontal", 2, 3, 3, 3),
    Sketcher.Constraint("Diameter", 0, Q("3 mm")),
    Sketcher.Constraint("DistanceY", -1, 1, 0, 3, Q("31.2 mm")),
    Sketcher.Constraint("DistanceX", 0, 3, 1, 3, Q("48.7 mm")),
    Sketcher.Constraint("DistanceX", 0, 3, -1, 1, Q("26.49 mm")),
    Sketcher.Constraint("DistanceX", -1, 1, 3, 3, Q("22.214364 mm")),
])
pocket7 = body.newObject("PartDesign::Pocket", "Pocket006")
pocket7.Profile = sketch19
pocket7.Length = 9

# Sketch on XY plane
sketch20 = body.newObject("Sketcher::SketchObject", "Sketch019")
sketch20.AttachmentSupport = (doc.getObject("XY_Plane"), [""])
sketch20.MapMode = "FlatFace"
sketch20.AttachmentOffset = App.Placement(V(0, 0, 35.2), App.Rotation())
add_polygon(sketch20, [(-31.5, 23.2), (-31.5, 21.2), (-21.5, 21.2), (-21.5, 23.2)])  # lines 0-3
sketch20.addConstraint([
    Sketcher.Constraint("Vertical", 0),
    Sketcher.Constraint("Horizontal", 1),
    Sketcher.Constraint("Vertical", 2),
    Sketcher.Constraint("Horizontal", 3),
    Sketcher.Constraint("DistanceX", 1, 1, 1, 2, Q("10 mm")),
    Sketcher.Constraint("DistanceY", 0, 2, 0, 1, Q("2 mm")),
    Sketcher.Constraint("DistanceY", -1, 1, 0, 2, Q("21.2 mm")),
    Sketcher.Constraint("DistanceX", 0, 2, -1, 1, Q("31.49 mm")),
])
pocket8 = body.newObject("PartDesign::Pocket", "Pocket007")
pocket8.Profile = sketch20
pocket8.Length = 9

# Sketch on XY plane
sketch21 = body.newObject("Sketcher::SketchObject", "Sketch020")
sketch21.AttachmentSupport = (doc.getObject("XY_Plane"), [""])
sketch21.MapMode = "FlatFace"
sketch21.AttachmentOffset = App.Placement(V(0, 0, 35.2), App.Rotation())
add_polygon(sketch21, [(17.2, 23.2), (17.2, 21.2), (27.2, 21.2), (27.2, 23.2)])  # lines 0-3
sketch21.addConstraint([
    Sketcher.Constraint("Vertical", 0),
    Sketcher.Constraint("Horizontal", 1),
    Sketcher.Constraint("Vertical", 2),
    Sketcher.Constraint("Horizontal", 3),
    Sketcher.Constraint("DistanceX", 1, 1, 1, 2, Q("10 mm")),
    Sketcher.Constraint("DistanceY", 0, 2, 0, 1, Q("2 mm")),
    Sketcher.Constraint("DistanceY", -1, 1, 0, 2, Q("21.2 mm")),
    Sketcher.Constraint("DistanceX", -1, 1, 0, 2, Q("17.21 mm")),
])
pocket9 = body.newObject("PartDesign::Pocket", "Pocket008")
pocket9.Profile = sketch21
pocket9.Length = 9

# Sketch on XY plane
sketch22 = body.newObject("Sketcher::SketchObject", "Sketch021")
sketch22.AttachmentSupport = (doc.getObject("XY_Plane"), [""])
sketch22.MapMode = "FlatFace"
sketch22.AttachmentOffset = App.Placement(V(0, 0, -35.2), App.Rotation())
add_polygon(sketch22, [(27.2, 23.2), (27.2, 21.2), (17.2, 21.2), (17.2, 23.2)])  # lines 0-3
add_polygon(sketch22, [(-21.5, 23.2), (-21.5, 21.2), (-31.5, 21.2), (-31.5, 23.2)])  # lines 4-7
sketch22.addConstraint([
    Sketcher.Constraint("Vertical", 0),
    Sketcher.Constraint("Horizontal", 1),
    Sketcher.Constraint("Vertical", 2),
    Sketcher.Constraint("Horizontal", 3),
    Sketcher.Constraint("Vertical", 4),
    Sketcher.Constraint("Horizontal", 5),
    Sketcher.Constraint("Vertical", 6),
    Sketcher.Constraint("Horizontal", 7),
    Sketcher.Constraint("Horizontal", 1, 2, 4, 2),
    Sketcher.Constraint("Horizontal", 3, 2, 6, 2),
    Sketcher.Constraint("Equal", 3, 5),
    Sketcher.Constraint("DistanceX", 1, 2, 1, 1, Q("10 mm")),
    Sketcher.Constraint("DistanceY", 0, 2, 0, 1, Q("2 mm")),
    Sketcher.Constraint("DistanceY", -1, 1, 0, 2, Q("21.2 mm")),
    Sketcher.Constraint("DistanceX", 4, 2, 1, 2, Q("38.709071 mm")),
    Sketcher.Constraint("DistanceX", -1, 1, 0, 2, Q("27.214364 mm")),
])
pocket10 = body.newObject("PartDesign::Pocket", "Pocket009")
pocket10.Profile = sketch22
pocket10.Length = 9
pocket10.Reversed = True
doc.recompute()

fillet = body.newObject("PartDesign::Fillet", "Fillet")
fillet.Base = (pocket10, edges_at(pocket10, [
    (27.214, 25.2, -35.2),
    (-21.495, 25.2, -35.2),
    (-31.49, 25.2, 35.2),
    (17.21, 25.2, 35.2),
    (-21.49, 25.2, 35.2),
    (27.21, 25.2, 35.2),
    (-31.495, 25.2, -35.2),
    (17.214, 25.2, -35.2),
]))
fillet.Radius = 1

doc.recompute()
